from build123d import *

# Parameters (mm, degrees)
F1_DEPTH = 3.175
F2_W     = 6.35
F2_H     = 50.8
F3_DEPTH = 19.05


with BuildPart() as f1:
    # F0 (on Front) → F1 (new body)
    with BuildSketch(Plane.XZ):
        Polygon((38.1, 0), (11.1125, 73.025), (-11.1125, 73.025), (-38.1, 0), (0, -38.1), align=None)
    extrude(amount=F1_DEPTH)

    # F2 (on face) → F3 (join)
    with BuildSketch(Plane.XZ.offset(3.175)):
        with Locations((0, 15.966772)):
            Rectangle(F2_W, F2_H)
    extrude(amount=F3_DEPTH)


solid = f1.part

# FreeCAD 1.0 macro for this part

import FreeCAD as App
import Part
import Sketcher
Q = App.Units.Quantity

doc = App.newDocument("Part")
body = doc.addObject("PartDesign::Body", "Body")

# Sketch on XZ plane
sketch1 = doc.addObject("Sketcher::SketchObject", "Sketch")
body.addObject(sketch1)
sketch1.AttachmentSupport = (doc.XZ_Plane, [""])
sketch1.MapMode = "FlatFace"
sketch1.addGeometry(Part.LineSegment(App.Vector(38, 0, 0), App.Vector(11, 73, 0)), False)
sketch1.addGeometry(Part.LineSegment(App.Vector(11, 73, 0), App.Vector(-11, 73, 0)), False)
sketch1.addGeometry(Part.LineSegment(App.Vector(-11, 73, 0), App.Vector(-38, 0, 0)), False)
sketch1.addGeometry(Part.LineSegment(App.Vector(-38, 0, 0), App.Vector(0, -38, 0)), False)
sketch1.addGeometry(Part.LineSegment(App.Vector(0, -38, 0), App.Vector(38, 0, 0)), False)
sketch1.addConstraint(Sketcher.Constraint("Coincident", 0, 2, 1, 1))
sketch1.addConstraint(Sketcher.Constraint("Coincident", 1, 2, 2, 1))
sketch1.addConstraint(Sketcher.Constraint("Coincident", 2, 2, 3, 1))
sketch1.addConstraint(Sketcher.Constraint("Coincident", 3, 2, 4, 1))
sketch1.addConstraint(Sketcher.Constraint("Coincident", 4, 2, 0, 1))
sketch1.addConstraint(Sketcher.Constraint("Horizontal", 1))
sketch1.addConstraint(Sketcher.Constraint("Symmetric", 2, 2, 4, 2, -1, 1))
sketch1.addConstraint(Sketcher.Constraint("PointOnObject", 2, 2, -1))
sketch1.addConstraint(Sketcher.Constraint("PointOnObject", 3, 2, -2))
sketch1.addConstraint(Sketcher.Constraint("Perpendicular", 3, 4))
sketch1.addConstraint(Sketcher.Constraint("Equal", 0, 2))
sketch1.addConstraint(Sketcher.Constraint("DistanceX", 2, 2, 4, 2, Q("3 in")))
sketch1.addConstraint(Sketcher.Constraint("DistanceX", 1, 2, 1, 1, Q("0.875 in")))
sketch1.addConstraint(Sketcher.Constraint("DistanceY", -1, 1, 0, 2, Q("2.875 in")))
pad1 = doc.addObject("PartDesign::Pad", "Pad")
body.addObject(pad1)
pad1.Profile = sketch1
pad1.Length = Q("0.125 in")

# Sketch on XZ plane
sketch2 = doc.addObject("Sketcher::SketchObject", "Sketch001")
body.addObject(sketch2)
sketch2.AttachmentSupport = (doc.XZ_Plane, [""])
sketch2.MapMode = "FlatFace"
sketch2.AttachmentOffset = App.Placement(App.Vector(0, 0, 0.125 * 25.4), App.Rotation())
sketch2.addGeometry(Part.LineSegment(App.Vector(-3, 41, 0), App.Vector(-3, -9, 0)), False)
sketch2.addGeometry(Part.LineSegment(App.Vector(-3, -9, 0), App.Vector(3, -9, 0)), False)
sketch2.addGeometry(Part.LineSegment(App.Vector(3, -9, 0), App.Vector(3, 41, 0)), False)
sketch2.addGeometry(Part.LineSegment(App.Vector(3, 41, 0), App.Vector(-3, 41, 0)), False)
sketch2.addConstraint(Sketcher.Constraint("Coincident", 0, 2, 1, 1))
sketch2.addConstraint(Sketcher.Constraint("Coincident", 1, 2, 2, 1))
sketch2.addConstraint(Sketcher.Constraint("Coincident", 2, 2, 3, 1))
sketch2.addConstraint(Sketcher.Constraint("Coincident", 3, 2, 0, 1))
sketch2.addConstraint(Sketcher.Constraint("Vertical", 0))
sketch2.addConstraint(Sketcher.Constraint("Horizontal", 1))
sketch2.addConstraint(Sketcher.Constraint("Vertical", 2))
sketch2.addConstraint(Sketcher.Constraint("Horizontal", 3))
sketch2.addConstraint(Sketcher.Constraint("DistanceY", 0, 2, 0, 1, Q("2 in")))
sketch2.addConstraint(Sketcher.Constraint("DistanceX", 1, 1, 1, 2, Q("0.25 in")))
sketch2.addConstraint(Sketcher.Constraint("DistanceX", 0, 2, -1, 1, Q("0.125 in")))
sketch2.addConstraint(Sketcher.Constraint("DistanceY", -1, 1, 2, 2, Q("41.366772 mm")))
pad2 = doc.addObject("PartDesign::Pad", "Pad001")
body.addObject(pad2)
pad2.Profile = sketch2
pad2.Length = Q("0.75 in")

doc.recompute()
